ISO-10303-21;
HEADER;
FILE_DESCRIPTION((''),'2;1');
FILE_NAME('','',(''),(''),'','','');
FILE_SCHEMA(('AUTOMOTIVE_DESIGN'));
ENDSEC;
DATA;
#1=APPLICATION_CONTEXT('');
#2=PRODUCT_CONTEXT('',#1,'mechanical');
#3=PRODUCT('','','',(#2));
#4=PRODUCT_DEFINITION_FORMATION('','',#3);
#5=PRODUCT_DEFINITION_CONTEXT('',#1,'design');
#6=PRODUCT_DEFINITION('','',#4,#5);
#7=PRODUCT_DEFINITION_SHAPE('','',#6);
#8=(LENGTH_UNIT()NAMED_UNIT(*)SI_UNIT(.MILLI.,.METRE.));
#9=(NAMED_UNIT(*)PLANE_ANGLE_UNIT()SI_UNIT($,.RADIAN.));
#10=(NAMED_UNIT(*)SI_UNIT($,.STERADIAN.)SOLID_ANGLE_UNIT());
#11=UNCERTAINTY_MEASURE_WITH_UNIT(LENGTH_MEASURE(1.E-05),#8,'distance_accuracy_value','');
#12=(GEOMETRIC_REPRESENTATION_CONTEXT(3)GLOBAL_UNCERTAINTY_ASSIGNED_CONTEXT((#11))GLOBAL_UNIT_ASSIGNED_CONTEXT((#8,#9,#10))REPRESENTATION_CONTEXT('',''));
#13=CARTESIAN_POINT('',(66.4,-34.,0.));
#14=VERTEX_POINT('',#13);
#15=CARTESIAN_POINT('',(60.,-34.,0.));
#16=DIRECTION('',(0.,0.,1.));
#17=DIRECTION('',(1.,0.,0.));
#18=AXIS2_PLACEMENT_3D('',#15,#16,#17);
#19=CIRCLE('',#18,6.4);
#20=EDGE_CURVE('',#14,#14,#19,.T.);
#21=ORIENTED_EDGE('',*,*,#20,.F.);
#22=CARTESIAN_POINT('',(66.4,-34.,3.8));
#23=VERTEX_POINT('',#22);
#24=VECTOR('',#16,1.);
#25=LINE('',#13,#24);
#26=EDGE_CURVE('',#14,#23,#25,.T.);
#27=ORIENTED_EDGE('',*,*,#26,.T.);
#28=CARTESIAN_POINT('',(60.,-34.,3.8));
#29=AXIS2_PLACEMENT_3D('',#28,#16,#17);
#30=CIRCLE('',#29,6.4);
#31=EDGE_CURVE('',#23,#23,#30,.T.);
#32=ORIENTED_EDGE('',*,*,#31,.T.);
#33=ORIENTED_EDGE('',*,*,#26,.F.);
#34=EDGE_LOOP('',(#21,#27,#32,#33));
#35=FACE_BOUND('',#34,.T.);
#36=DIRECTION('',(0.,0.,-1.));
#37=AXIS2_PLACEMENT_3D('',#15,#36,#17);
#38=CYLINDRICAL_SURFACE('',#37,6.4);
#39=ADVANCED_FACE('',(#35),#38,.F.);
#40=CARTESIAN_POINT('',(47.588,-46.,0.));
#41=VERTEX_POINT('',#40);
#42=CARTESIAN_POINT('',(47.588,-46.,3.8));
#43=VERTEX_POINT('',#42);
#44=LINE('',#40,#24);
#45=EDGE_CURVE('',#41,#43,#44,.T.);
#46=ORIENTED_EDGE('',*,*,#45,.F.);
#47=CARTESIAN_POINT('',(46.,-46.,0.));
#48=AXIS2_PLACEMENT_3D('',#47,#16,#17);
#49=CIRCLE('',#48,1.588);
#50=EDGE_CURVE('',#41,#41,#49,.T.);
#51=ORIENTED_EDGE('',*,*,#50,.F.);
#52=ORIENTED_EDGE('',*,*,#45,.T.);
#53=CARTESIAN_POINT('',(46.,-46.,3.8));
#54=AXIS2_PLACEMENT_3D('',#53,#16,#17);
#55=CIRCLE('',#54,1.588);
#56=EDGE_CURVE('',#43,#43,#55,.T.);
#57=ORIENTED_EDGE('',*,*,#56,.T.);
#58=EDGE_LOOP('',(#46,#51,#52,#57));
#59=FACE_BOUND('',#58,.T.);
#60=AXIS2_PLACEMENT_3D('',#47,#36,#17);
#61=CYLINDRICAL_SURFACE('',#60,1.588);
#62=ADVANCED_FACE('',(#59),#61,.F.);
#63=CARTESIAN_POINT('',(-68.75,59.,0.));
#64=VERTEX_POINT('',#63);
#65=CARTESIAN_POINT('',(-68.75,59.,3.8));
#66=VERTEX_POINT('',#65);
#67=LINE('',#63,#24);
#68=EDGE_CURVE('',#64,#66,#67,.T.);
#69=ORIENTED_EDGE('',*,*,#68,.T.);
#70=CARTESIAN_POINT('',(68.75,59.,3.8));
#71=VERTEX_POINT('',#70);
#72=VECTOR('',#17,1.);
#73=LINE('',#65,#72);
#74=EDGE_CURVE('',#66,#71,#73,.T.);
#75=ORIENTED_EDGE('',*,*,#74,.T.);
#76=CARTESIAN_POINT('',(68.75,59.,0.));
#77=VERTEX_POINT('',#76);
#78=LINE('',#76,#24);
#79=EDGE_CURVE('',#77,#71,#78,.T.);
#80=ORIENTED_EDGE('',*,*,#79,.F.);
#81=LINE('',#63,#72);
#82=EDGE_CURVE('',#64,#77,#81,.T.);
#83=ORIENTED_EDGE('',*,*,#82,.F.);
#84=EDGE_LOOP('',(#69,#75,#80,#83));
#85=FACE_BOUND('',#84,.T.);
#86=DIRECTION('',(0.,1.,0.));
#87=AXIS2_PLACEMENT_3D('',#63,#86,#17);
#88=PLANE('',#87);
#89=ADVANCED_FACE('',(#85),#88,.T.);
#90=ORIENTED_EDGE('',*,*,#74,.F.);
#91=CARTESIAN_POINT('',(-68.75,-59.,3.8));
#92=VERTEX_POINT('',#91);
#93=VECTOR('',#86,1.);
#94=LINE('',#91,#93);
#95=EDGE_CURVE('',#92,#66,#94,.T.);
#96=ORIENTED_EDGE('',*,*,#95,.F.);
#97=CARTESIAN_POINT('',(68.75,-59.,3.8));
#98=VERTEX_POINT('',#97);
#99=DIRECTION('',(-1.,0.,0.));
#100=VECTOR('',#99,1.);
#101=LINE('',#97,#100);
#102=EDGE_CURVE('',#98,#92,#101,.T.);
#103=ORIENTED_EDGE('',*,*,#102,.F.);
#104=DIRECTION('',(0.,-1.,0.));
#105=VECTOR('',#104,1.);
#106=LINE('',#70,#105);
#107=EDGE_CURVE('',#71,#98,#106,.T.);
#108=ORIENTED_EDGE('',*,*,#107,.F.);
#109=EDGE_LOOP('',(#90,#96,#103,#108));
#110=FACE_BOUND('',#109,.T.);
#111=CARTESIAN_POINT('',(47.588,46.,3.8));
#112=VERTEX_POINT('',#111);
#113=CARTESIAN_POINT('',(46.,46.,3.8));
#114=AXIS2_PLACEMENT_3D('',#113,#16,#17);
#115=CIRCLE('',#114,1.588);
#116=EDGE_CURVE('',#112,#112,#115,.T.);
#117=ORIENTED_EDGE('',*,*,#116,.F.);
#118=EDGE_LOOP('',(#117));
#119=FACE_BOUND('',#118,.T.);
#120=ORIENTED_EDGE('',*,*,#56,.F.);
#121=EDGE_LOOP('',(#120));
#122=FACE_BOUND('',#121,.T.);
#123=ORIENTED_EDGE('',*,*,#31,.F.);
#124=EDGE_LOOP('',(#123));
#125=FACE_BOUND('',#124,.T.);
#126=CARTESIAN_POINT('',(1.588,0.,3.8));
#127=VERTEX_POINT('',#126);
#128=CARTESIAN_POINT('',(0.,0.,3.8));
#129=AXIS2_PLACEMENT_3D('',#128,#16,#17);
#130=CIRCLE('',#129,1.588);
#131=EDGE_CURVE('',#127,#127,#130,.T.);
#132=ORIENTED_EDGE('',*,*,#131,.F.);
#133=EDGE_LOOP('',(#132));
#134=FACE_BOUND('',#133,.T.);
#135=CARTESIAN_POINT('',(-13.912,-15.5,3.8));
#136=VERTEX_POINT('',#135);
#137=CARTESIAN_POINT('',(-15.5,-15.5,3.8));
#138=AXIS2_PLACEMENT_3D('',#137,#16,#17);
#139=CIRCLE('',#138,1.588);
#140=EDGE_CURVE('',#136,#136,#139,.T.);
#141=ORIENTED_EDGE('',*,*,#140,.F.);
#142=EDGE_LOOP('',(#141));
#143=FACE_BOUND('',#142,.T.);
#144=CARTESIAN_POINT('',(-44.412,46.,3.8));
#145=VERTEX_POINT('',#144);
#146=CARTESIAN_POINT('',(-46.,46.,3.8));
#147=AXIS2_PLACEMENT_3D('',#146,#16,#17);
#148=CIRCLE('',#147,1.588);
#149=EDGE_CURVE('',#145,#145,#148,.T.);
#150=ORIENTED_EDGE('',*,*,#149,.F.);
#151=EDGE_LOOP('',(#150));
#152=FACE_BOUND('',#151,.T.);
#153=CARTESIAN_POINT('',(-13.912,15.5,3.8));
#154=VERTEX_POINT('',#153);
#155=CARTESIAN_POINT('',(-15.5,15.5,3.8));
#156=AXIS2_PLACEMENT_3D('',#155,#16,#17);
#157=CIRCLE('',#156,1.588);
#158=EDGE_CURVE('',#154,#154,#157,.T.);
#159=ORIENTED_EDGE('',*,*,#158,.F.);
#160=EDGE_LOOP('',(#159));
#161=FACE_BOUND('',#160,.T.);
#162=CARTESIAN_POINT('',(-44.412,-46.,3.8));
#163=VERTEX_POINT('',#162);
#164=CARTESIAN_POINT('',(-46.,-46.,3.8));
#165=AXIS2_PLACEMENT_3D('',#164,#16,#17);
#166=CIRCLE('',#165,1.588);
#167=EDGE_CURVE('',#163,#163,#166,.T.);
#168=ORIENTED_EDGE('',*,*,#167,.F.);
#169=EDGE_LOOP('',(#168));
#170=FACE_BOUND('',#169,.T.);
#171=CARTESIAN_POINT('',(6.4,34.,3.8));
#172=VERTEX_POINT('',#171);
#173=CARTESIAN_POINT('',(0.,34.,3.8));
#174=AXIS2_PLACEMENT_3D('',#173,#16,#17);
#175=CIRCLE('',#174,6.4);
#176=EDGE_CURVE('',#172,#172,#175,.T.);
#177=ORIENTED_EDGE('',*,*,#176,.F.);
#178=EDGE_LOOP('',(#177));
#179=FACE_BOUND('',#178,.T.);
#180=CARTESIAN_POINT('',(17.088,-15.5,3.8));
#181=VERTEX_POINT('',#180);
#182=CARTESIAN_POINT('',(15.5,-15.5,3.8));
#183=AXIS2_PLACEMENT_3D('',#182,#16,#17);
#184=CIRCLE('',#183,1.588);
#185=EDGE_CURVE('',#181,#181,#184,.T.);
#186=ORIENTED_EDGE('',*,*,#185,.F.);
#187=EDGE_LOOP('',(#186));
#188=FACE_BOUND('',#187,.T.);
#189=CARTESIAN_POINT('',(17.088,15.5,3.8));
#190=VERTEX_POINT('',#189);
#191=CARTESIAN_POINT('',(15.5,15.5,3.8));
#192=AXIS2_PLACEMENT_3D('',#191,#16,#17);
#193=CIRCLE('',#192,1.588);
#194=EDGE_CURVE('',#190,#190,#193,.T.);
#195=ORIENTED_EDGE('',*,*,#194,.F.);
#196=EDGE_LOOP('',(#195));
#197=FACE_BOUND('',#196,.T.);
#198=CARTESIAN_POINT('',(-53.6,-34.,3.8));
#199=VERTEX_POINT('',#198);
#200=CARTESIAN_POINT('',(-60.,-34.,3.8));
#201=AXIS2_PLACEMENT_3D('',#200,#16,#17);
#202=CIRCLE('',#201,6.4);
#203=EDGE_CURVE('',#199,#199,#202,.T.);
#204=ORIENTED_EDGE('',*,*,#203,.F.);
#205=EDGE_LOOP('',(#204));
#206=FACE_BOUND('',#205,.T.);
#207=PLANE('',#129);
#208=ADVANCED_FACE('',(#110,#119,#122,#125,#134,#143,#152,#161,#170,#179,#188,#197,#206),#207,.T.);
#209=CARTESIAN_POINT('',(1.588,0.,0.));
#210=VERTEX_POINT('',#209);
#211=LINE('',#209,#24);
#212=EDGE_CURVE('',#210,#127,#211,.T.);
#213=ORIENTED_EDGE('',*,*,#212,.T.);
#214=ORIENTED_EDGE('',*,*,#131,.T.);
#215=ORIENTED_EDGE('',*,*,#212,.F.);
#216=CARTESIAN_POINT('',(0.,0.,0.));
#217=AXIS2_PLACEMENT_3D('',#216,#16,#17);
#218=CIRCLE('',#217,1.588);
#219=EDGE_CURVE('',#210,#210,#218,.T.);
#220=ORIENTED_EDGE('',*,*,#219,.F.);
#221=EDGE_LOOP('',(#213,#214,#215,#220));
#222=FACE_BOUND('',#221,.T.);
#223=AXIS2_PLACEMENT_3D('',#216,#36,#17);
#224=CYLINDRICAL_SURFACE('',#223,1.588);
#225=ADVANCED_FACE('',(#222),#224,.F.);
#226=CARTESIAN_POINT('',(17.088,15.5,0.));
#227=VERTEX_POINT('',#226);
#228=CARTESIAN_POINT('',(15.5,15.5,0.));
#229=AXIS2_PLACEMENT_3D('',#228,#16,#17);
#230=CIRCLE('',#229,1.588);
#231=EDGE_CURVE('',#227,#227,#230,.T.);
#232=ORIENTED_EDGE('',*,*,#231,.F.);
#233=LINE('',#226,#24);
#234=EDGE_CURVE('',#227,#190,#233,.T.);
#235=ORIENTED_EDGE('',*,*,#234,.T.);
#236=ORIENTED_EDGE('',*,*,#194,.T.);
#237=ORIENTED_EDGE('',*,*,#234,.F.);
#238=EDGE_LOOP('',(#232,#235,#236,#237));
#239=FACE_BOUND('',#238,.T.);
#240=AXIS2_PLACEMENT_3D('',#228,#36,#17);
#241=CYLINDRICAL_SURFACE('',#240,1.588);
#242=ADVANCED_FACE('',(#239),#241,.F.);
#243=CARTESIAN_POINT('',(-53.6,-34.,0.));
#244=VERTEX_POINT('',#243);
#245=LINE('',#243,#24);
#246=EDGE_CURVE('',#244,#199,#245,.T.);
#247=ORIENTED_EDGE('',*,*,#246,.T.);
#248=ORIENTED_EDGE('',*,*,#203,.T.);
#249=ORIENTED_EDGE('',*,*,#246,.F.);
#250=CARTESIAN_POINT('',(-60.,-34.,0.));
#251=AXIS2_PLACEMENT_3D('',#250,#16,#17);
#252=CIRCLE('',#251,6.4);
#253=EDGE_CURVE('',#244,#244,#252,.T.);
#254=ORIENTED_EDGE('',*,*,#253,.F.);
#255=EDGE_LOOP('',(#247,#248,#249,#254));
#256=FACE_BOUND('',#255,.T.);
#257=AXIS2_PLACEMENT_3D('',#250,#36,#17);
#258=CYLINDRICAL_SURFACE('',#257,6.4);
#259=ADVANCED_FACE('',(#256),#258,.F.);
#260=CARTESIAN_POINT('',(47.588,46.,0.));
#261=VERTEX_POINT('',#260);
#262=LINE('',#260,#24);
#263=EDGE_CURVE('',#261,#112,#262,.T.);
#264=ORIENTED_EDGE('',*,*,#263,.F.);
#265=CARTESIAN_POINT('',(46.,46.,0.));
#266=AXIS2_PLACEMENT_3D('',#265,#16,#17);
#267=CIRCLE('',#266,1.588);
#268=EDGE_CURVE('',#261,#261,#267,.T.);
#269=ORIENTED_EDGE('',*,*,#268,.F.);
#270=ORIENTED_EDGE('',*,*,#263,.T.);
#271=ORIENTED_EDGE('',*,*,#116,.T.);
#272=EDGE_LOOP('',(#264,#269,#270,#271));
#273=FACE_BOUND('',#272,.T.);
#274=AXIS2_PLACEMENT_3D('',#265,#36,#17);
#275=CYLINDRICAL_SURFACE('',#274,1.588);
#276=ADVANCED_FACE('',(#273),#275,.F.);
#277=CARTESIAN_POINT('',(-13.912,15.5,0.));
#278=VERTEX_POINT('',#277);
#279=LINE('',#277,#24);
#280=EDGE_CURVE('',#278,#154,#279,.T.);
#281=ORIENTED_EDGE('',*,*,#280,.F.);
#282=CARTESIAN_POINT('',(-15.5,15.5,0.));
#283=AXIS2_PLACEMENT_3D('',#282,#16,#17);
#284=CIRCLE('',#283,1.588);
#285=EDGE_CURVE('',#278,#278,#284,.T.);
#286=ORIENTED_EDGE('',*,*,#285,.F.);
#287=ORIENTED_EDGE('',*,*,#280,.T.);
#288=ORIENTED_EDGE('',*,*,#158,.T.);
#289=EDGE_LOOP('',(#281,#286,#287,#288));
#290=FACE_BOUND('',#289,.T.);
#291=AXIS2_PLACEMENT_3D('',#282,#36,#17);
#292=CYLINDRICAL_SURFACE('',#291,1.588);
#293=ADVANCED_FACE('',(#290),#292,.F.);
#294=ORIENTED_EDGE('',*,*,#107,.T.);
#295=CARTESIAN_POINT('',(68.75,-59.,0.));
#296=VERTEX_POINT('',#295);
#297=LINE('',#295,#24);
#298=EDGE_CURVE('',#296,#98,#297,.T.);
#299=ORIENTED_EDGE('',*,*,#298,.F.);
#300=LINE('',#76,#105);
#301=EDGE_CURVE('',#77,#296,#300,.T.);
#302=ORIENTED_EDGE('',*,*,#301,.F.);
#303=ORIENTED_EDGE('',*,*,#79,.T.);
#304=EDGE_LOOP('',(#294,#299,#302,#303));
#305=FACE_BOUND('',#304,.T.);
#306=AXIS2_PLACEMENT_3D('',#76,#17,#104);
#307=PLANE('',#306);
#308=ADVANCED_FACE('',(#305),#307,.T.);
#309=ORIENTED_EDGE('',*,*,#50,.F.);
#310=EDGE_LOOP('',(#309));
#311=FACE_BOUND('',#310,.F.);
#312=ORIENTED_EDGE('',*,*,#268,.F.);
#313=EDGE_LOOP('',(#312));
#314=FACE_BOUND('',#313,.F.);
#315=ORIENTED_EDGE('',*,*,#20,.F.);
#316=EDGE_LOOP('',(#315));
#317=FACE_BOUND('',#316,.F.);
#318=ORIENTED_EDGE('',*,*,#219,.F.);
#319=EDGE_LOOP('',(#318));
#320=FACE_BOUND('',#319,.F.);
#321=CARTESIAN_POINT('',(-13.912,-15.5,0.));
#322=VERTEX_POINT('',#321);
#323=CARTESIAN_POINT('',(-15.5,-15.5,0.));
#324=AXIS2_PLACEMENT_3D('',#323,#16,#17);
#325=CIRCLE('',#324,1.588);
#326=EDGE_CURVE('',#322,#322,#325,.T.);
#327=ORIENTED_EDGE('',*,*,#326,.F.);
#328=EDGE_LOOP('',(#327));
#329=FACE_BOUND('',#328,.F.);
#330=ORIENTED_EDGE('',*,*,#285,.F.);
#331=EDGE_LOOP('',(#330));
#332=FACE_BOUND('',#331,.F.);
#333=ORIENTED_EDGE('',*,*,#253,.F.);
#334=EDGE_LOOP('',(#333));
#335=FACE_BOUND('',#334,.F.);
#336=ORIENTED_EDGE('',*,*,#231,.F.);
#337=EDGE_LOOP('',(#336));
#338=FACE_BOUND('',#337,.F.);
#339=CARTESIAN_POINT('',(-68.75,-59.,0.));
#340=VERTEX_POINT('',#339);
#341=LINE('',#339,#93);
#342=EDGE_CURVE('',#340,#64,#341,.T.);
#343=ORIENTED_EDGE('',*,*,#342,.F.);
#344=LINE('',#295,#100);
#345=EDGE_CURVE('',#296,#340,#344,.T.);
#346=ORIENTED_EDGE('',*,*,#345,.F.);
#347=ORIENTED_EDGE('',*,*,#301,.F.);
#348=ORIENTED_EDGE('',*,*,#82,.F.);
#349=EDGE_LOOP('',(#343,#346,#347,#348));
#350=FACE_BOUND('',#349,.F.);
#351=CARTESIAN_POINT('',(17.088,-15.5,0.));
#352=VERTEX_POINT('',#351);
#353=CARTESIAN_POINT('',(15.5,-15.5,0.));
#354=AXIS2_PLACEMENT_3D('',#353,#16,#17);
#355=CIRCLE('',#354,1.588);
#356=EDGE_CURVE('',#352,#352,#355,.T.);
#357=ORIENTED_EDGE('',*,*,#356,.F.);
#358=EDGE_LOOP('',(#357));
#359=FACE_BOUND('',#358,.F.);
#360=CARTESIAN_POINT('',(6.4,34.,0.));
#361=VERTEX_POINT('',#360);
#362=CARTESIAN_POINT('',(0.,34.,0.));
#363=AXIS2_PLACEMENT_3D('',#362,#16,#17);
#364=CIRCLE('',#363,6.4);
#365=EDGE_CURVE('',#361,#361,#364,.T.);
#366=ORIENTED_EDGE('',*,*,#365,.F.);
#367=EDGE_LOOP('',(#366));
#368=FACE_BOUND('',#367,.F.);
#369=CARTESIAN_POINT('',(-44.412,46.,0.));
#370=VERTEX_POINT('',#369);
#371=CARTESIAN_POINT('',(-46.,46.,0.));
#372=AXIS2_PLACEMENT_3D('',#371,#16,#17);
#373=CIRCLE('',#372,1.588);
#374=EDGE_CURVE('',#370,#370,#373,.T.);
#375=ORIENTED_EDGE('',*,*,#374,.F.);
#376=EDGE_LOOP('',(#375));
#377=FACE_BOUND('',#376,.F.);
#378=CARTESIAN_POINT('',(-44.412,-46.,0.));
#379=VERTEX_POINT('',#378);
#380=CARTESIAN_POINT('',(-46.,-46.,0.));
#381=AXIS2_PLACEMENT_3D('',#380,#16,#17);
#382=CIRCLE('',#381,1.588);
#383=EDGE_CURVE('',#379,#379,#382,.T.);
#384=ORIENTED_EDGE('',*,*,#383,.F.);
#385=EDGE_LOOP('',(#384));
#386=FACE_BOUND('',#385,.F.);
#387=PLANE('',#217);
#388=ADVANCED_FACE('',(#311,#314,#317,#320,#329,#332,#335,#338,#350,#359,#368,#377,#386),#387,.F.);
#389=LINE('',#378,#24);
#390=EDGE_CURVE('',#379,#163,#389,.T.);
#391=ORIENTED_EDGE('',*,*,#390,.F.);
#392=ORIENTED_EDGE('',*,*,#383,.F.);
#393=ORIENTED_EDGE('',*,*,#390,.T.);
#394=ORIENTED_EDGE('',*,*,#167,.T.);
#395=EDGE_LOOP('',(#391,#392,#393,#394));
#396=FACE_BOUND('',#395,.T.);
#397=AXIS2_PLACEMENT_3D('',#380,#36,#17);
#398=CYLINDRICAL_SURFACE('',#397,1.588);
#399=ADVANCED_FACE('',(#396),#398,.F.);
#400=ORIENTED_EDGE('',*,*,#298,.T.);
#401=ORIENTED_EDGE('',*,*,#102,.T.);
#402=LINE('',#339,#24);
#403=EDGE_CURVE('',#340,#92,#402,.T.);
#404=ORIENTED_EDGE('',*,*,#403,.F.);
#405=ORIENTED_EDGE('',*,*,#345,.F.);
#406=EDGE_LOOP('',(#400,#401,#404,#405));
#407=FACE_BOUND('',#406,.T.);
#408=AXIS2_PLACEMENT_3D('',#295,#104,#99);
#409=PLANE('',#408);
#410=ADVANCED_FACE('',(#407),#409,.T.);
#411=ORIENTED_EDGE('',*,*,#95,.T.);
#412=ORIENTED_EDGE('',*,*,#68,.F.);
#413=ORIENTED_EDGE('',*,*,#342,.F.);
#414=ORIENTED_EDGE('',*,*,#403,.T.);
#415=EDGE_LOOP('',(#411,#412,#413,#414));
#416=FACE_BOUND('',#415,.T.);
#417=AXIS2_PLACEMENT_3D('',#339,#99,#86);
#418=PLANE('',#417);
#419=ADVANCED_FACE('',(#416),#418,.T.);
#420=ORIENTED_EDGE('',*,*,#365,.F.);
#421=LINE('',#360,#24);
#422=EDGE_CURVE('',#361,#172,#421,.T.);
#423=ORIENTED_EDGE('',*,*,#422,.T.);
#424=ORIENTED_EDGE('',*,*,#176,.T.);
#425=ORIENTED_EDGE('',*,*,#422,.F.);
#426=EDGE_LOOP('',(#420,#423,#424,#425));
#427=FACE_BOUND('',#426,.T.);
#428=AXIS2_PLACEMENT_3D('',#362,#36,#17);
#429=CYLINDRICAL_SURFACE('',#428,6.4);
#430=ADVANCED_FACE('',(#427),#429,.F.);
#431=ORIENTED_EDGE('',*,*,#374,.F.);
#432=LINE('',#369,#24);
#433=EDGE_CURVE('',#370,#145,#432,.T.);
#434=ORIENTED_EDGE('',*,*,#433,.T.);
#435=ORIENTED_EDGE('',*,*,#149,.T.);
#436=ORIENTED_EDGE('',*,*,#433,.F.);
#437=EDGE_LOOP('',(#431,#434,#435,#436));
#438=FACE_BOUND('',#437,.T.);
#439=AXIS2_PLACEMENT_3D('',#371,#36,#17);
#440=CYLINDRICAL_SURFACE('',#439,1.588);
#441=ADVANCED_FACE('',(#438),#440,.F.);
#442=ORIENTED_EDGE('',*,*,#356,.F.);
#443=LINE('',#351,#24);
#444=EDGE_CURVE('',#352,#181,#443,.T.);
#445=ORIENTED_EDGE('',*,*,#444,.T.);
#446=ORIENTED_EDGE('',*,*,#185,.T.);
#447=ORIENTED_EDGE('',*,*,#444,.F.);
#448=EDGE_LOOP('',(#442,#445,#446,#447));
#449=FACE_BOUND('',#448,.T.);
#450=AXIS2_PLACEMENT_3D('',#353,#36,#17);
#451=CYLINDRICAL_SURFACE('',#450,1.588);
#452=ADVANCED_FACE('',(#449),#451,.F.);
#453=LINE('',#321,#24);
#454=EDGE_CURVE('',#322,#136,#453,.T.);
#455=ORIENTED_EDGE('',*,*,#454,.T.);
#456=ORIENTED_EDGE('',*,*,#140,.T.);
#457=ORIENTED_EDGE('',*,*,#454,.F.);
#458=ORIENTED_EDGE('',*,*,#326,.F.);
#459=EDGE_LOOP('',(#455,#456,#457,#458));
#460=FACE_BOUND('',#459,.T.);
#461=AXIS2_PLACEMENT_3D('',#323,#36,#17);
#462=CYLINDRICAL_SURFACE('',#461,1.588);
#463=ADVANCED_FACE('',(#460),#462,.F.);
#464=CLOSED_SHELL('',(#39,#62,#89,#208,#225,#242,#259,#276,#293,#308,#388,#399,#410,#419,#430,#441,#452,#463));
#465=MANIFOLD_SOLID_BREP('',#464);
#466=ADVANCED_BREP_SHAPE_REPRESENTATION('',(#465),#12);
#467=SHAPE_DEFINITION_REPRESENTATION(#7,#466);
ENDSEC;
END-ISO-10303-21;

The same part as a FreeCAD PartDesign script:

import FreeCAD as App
import Part
import Sketcher

doc = App.newDocument("Part")
body = doc.addObject("PartDesign::Body", "Body")

sketch1 = body.newObject("Sketcher::SketchObject", "Sketch")
sketch1.AttachmentSupport = (doc.getObject("XY_Plane"), [""])
sketch1.MapMode = "FlatFace"
sketch1.addGeometry(Part.LineSegment(App.Vector(68.8, 59, 0), App.Vector(-68.8, 59, 0)), False)
sketch1.addGeometry(Part.LineSegment(App.Vector(-68.8, 59, 0), App.Vector(-68.8, -59, 0)), False)
sketch1.addGeometry(Part.LineSegment(App.Vector(-68.8, -59, 0), App.Vector(68.8, -59, 0)), False)
sketch1.addGeometry(Part.LineSegment(App.Vector(68.8, -59, 0), App.Vector(68.8, 59, 0)), False)
sketch1.addGeometry(Part.Circle(App.Vector(-46, -46, 0), App.Vector(0, 0, 1), 1.6), False)
sketch1.addGeometry(Part.Circle(App.Vector(-60, -34, 0), App.Vector(0, 0, 1), 6.4), False)
sketch1.addGeometry(Part.Circle(App.Vector(-15.5, -15.5, 0), App.Vector(0, 0, 1), 1.6), False)
sketch1.addGeometry(Part.Circle(App.Vector(46, -46, 0), App.Vector(0, 0, 1), 1.6), False)
sketch1.addGeometry(Part.Circle(App.Vector(60, -34, 0), App.Vector(0, 0, 1), 6.4), False)
sketch1.addGeometry(Part.Circle(App.Vector(15.5, -15.5, 0), App.Vector(0, 0, 1), 1.6), False)
sketch1.addGeometry(Part.Circle(App.Vector(-15.5, 15.5, 0), App.Vector(0, 0, 1), 1.6), False)
sketch1.addGeometry(Part.Circle(App.Vector(-46, 46, 0), App.Vector(0, 0, 1), 1.6), False)
sketch1.addGeometry(Part.Circle(App.Vector(0, 0, 0), App.Vector(0, 0, 1), 1.6), False)
sketch1.addGeometry(Part.Circle(App.Vector(15.5, 15.5, 0), App.Vector(0, 0, 1), 1.6), False)
sketch1.addGeometry(Part.Circle(App.Vector(0, 34, 0), App.Vector(0, 0, 1), 6.4), False)
sketch1.addGeometry(Part.Circle(App.Vector(46, 46, 0), App.Vector(0, 0, 1), 1.6), False)
sketch1.addConstraint(Sketcher.Constraint("Coincident", 0, 2, 1, 1))
sketch1.addConstraint(Sketcher.Constraint("Coincident", 1, 2, 2, 1))
sketch1.addConstraint(Sketcher.Constraint("Coincident", 2, 2, 3, 1))
sketch1.addConstraint(Sketcher.Constraint("Coincident", 3, 2, 0, 1))
sketch1.addConstraint(Sketcher.Constraint("Horizontal", 0))
sketch1.addConstraint(Sketcher.Constraint("Vertical", 1))
sketch1.addConstraint(Sketcher.Constraint("Horizontal", 2))
sketch1.addConstraint(Sketcher.Constraint("Vertical", 3))
sketch1.addConstraint(Sketcher.Constraint("Coincident", 12, 3, -1, 1))
sketch1.addConstraint(Sketcher.Constraint("Equal", 4, 6))
sketch1.addConstraint(Sketcher.Constraint("Equal", 6, 7))
sketch1.addConstraint(Sketcher.Constraint("Equal", 5, 8))
sketch1.addConstraint(Sketcher.Constraint("Equal", 7, 9))
sketch1.addConstraint(Sketcher.Constraint("Equal", 9, 10))
sketch1.addConstraint(Sketcher.Constraint("Equal", 10, 11))
sketch1.addConstraint(Sketcher.Constraint("Equal", 11, 12))
sketch1.addConstraint(Sketcher.Constraint("Equal", 12, 13))
sketch1.addConstraint(Sketcher.Constraint("Equal", 8, 14))
sketch1.addConstraint(Sketcher.Constraint("Equal", 13, 15))
sketch1.addConstraint(Sketcher.Constraint("Symmetric", 9, 3, 10, 3, -1, 1))
sketch1.addConstraint(Sketcher.Constraint("Symmetric", 7, 3, 11, 3, -1, 1))
sketch1.addConstraint(Sketcher.Constraint("Symmetric", 6, 3, 13, 3, -1, 1))
sketch1.addConstraint(Sketcher.Constraint("Symmetric", 4, 3, 15, 3, -1, 1))
sketch1.addConstraint(Sketcher.Constraint("Symmetric", 0, 2, 2, 2, -1, 1))
sketch1.addConstraint(Sketcher.Constraint("Symmetric", 4, 3, 7, 3, -2))
sketch1.addConstraint(Sketcher.Constraint("Symmetric", 5, 3, 8, 3, -2))
sketch1.addConstraint(Sketcher.Constraint("Symmetric", 6, 3, 9, 3, -2))
sketch1.addConstraint(Sketcher.Constraint("PointOnObject", 14, 3, -2))
sketch1.addConstraint(Sketcher.Constraint("Diameter", 5, 12.8))
sketch1.addConstraint(Sketcher.Constraint("DistanceY", 1, 2, 1, 1, 118.0))
sketch1.addConstraint(Sketcher.Constraint("Diameter", 4, 3.176))
sketch1.addConstraint(Sketcher.Constraint("DistanceX", 0, 2, 0, 1, 137.5))
sketch1.addConstraint(Sketcher.Constraint("DistanceX", 4, 3, -1, 1, 46.0))
sketch1.addConstraint(Sketcher.Constraint("DistanceY", 4, 3, -1, 1, 46.0))
sketch1.addConstraint(Sketcher.Constraint("DistanceX", 5, 3, 8, 3, 120.0))
sketch1.addConstraint(Sketcher.Constraint("DistanceX", 6, 3, 9, 3, 31.0))
sketch1.addConstraint(Sketcher.Constraint("DistanceY", 6, 3, 10, 3, 31.0))
sketch1.addConstraint(Sketcher.Constraint("DistanceY", 14, 3, 0, 2, 25.0))
sketch1.addConstraint(Sketcher.Constraint("DistanceY", 1, 2, 5, 3, 25.0))
pad1 = body.newObject("PartDesign::Pad", "Pad")
pad1.Profile = sketch1
pad1.Length = 3.8

doc.recompute()
